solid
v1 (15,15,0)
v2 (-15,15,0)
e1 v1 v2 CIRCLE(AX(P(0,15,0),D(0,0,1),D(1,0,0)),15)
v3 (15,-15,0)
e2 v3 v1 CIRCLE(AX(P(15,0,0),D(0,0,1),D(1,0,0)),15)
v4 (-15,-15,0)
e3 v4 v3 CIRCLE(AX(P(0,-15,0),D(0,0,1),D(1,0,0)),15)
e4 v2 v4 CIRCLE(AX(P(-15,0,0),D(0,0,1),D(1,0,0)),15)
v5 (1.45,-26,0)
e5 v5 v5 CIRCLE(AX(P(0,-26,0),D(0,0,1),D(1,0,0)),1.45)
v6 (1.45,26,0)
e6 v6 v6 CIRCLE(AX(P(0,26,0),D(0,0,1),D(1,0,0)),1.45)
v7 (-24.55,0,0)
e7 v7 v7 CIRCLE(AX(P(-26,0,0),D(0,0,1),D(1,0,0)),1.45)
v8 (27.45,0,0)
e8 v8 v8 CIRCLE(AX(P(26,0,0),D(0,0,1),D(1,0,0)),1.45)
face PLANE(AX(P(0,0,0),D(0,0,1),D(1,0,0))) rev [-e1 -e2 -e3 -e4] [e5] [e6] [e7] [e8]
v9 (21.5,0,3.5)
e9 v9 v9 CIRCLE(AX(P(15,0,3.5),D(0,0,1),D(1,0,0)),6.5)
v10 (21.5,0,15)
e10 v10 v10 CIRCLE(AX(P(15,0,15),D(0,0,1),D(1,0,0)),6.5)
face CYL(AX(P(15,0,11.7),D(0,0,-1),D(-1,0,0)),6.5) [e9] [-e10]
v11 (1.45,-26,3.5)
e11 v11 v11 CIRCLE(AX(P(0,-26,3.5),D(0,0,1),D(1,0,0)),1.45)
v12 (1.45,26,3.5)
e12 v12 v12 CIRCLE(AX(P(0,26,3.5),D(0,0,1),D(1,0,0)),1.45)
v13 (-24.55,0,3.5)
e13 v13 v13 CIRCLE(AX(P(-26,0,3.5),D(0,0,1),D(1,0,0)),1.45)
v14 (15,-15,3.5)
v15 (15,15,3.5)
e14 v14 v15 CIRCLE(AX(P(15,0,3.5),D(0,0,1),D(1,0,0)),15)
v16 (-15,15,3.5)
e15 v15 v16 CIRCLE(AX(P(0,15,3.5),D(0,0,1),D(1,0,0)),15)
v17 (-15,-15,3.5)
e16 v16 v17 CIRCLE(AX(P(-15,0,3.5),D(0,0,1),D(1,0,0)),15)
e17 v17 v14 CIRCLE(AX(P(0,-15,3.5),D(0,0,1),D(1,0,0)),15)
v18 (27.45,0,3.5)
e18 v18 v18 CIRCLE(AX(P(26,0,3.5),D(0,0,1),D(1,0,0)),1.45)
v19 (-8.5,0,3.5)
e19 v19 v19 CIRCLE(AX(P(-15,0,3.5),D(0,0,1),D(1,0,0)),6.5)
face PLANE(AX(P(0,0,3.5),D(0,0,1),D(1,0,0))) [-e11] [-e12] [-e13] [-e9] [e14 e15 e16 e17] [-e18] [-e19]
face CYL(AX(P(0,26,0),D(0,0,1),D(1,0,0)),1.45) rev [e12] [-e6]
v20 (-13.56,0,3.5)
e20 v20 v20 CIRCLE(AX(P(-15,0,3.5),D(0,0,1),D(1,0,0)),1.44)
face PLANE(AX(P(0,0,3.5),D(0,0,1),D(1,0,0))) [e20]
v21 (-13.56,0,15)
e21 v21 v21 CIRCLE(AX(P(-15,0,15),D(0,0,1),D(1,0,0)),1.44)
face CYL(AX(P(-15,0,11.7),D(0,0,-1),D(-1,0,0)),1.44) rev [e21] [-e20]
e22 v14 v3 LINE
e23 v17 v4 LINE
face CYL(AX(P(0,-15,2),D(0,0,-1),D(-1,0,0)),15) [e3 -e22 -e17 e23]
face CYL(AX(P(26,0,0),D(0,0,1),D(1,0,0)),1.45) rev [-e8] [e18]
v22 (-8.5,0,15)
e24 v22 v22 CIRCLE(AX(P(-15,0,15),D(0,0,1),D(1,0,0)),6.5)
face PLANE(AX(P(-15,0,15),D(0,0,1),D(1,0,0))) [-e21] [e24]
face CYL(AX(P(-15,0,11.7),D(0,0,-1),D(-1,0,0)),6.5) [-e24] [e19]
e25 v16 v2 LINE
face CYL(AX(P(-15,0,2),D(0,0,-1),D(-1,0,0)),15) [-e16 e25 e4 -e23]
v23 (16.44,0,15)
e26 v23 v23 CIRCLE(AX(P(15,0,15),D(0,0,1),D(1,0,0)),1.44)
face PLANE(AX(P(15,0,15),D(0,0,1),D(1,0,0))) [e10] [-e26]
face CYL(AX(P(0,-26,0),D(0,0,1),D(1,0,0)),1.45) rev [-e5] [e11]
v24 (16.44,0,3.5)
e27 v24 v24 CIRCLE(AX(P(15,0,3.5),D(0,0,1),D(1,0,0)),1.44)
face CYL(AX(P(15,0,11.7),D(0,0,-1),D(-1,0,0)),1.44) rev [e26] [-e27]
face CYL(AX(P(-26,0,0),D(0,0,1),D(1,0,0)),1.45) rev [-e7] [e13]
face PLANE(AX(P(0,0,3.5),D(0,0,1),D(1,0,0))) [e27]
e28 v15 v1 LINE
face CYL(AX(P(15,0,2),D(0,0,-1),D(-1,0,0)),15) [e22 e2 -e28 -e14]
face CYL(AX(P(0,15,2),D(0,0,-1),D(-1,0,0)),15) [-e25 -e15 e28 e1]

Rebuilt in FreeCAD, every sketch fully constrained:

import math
import FreeCAD as App
import Part
import Sketcher

doc = App.newDocument("Part")
body = doc.addObject("PartDesign::Body", "Body")

sketch1 = body.newObject("Sketcher::SketchObject", "Sketch")
sketch1.AttachmentSupport = (doc.getObject("XY_Plane"), [""])
sketch1.MapMode = "FlatFace"
sketch1.addGeometry(Part.ArcOfCircle(Part.Circle(App.Vector(15, 0, 0), App.Vector(0, 0, 1), 15), math.radians(-90), math.radians(90)), False)
sketch1.addGeometry(Part.ArcOfCircle(Part.Circle(App.Vector(0, 15, 0), App.Vector(0, 0, 1), 15), math.radians(0), math.radians(180)), False)
sketch1.addGeometry(Part.ArcOfCircle(Part.Circle(App.Vector(-15, 0, 0), App.Vector(0, 0, 1), 15), math.radians(90), math.radians(270)), False)
sketch1.addGeometry(Part.ArcOfCircle(Part.Circle(App.Vector(0, -15, 0), App.Vector(0, 0, 1), 15), math.radians(180), math.radians(360)), False)
sketch1.addConstraint(Sketcher.Constraint("Coincident", 0, 2, 1, 1))
sketch1.addConstraint(Sketcher.Constraint("Coincident", 1, 2, 2, 1))
sketch1.addConstraint(Sketcher.Constraint("Coincident", 2, 2, 3, 1))
sketch1.addConstraint(Sketcher.Constraint("Coincident", 3, 2, 0, 1))
sketch1.addConstraint(Sketcher.Constraint("Equal", 0, 1))
sketch1.addConstraint(Sketcher.Constraint("Equal", 1, 2))
sketch1.addConstraint(Sketcher.Constraint("Equal", 2, 3))
sketch1.addConstraint(Sketcher.Constraint("Symmetric", 0, 3, 2, 3, -1, 1))
sketch1.addConstraint(Sketcher.Constraint("Symmetric", 1, 3, 3, 3, -1, 1))
sketch1.addConstraint(Sketcher.Constraint("Symmetric", 0, 2, 1, 2, -2))
sketch1.addConstraint(Sketcher.Constraint("Horizontal", 1, 3, 0, 2))
sketch1.addConstraint(Sketcher.Constraint("Vertical", 2, 3, 1, 2))
sketch1.addConstraint(Sketcher.Constraint("Radius", 0, 15.0))
pad1 = body.newObject("PartDesign::Pad", "Pad")
pad1.Profile = sketch1
pad1.Length = 2

sketch2 = body.newObject("Sketcher::SketchObject", "Sketch001")
sketch2.AttachmentSupport = (doc.getObject("XY_Plane"), [""])
sketch2.MapMode = "FlatFace"
sketch2.AttachmentOffset = App.Placement(App.Vector(0, 0, 2), App.Rotation())
sketch2.addGeometry(Part.Circle(App.Vector(-15, 0, 0), App.Vector(0, 0, 1), 6.5), False)
sketch2.addGeometry(Part.Circle(App.Vector(-15, 0, 0), App.Vector(0, 0, 1), 1.4), False)
sketch2.addGeometry(Part.Circle(App.Vector(15, 0, 0), App.Vector(0, 0, 1), 6.5), False)
sketch2.addGeometry(Part.Circle(App.Vector(15, 0, 0), App.Vector(0, 0, 1), 1.4), False)
sketch2.addConstraint(Sketcher.Constraint("Coincident", 1, 3, 0, 3))
sketch2.addConstraint(Sketcher.Constraint("Coincident", 3, 3, 2, 3))
sketch2.addConstraint(Sketcher.Constraint("Equal", 0, 2))
sketch2.addConstraint(Sketcher.Constraint("Equal", 1, 3))
sketch2.addConstraint(Sketcher.Constraint("Symmetric", 0, 3, 2, 3, -1, 1))
sketch2.addConstraint(Sketcher.Constraint("PointOnObject", 0, 3, -1))
sketch2.addConstraint(Sketcher.Constraint("Diameter", 0, 13.0))
sketch2.addConstraint(Sketcher.Constraint("Diameter", 1, 2.88))
sketch2.addConstraint(Sketcher.Constraint("DistanceX", 0, 3, -1, 1, 15.0))
pad2 = body.newObject("PartDesign::Pad", "Pad001")
pad2.Profile = sketch2
pad2.Length = 9.7

sketch3 = body.newObject("Sketcher::SketchObject", "Sketch002")
sketch3.AttachmentSupport = (doc.getObject("XY_Plane"), [""])
sketch3.MapMode = "FlatFace"
sketch3.addGeometry(Part.ArcOfCircle(Part.Circle(App.Vector(0, 15, 0), App.Vector(0, 0, 1), 15), math.radians(0), math.radians(180)), False)
sketch3.addGeometry(Part.ArcOfCircle(Part.Circle(App.Vector(-15, 0, 0), App.Vector(0, 0, 1), 15), math.radians(90), math.radians(270)), False)
sketch3.addGeometry(Part.ArcOfCircle(Part.Circle(App.Vector(0, -15, 0), App.Vector(0, 0, 1), 15), math.radians(180), math.radians(360)), False)
sketch3.addGeometry(Part.ArcOfCircle(Part.Circle(App.Vector(15, 0, 0), App.Vector(0, 0, 1), 15), math.radians(-90), math.radians(90)), False)
sketch3.addConstraint(Sketcher.Constraint("Coincident", 0, 2, 1, 1))
sketch3.addConstraint(Sketcher.Constraint("Coincident", 1, 2, 2, 1))
sketch3.addConstraint(Sketcher.Constraint("Coincident", 2, 2, 3, 1))
sketch3.addConstraint(Sketcher.Constraint("Coincident", 3, 2, 0, 1))
sketch3.addConstraint(Sketcher.Constraint("Equal", 0, 1))
sketch3.addConstraint(Sketcher.Constraint("Equal", 1, 2))
sketch3.addConstraint(Sketcher.Constraint("Equal", 2, 3))
sketch3.addConstraint(Sketcher.Constraint("Symmetric", 0, 3, 2, 3, -1, 1))
sketch3.addConstraint(Sketcher.Constraint("Symmetric", 1, 3, 3, 3, -1, 1))
sketch3.addConstraint(Sketcher.Constraint("Symmetric", 1, 2, 2, 2, -2))
sketch3.addConstraint(Sketcher.Constraint("Horizontal", 2, 3, 1, 2))
sketch3.addConstraint(Sketcher.Constraint("Vertical", 1, 3, 0, 2))
sketch3.addConstraint(Sketcher.Constraint("Radius", 0, 15.0))
pad3 = body.newObject("PartDesign::Pad", "Pad002")
pad3.Profile = sketch3
pad3.Length = 3.5

sketch4 = body.newObject("Sketcher::SketchObject", "Sketch003")
sketch4.AttachmentSupport = (doc.getObject("XY_Plane"), [""])
sketch4.MapMode = "FlatFace"
sketch4.AttachmentOffset = App.Placement(App.Vector(0, 0, 2), App.Rotation())
sketch4.addGeometry(Part.Circle(App.Vector(-15, 0, 0), App.Vector(0, 0, 1), 6.5), False)
sketch4.addGeometry(Part.Circle(App.Vector(-15, 0, 0), App.Vector(0, 0, 1), 1.4), False)
sketch4.addGeometry(Part.Circle(App.Vector(15, 0, 0), App.Vector(0, 0, 1), 6.5), False)
sketch4.addGeometry(Part.Circle(App.Vector(15, 0, 0), App.Vector(0, 0, 1), 1.4), False)
sketch4.addConstraint(Sketcher.Constraint("Coincident", 1, 3, 0, 3))
sketch4.addConstraint(Sketcher.Constraint("Coincident", 3, 3, 2, 3))
sketch4.addConstraint(Sketcher.Constraint("Equal", 0, 2))
sketch4.addConstraint(Sketcher.Constraint("Equal", 1, 3))
sketch4.addConstraint(Sketcher.Constraint("Symmetric", 0, 3, 2, 3, -1, 1))
sketch4.addConstraint(Sketcher.Constraint("PointOnObject", 0, 3, -1))
sketch4.addConstraint(Sketcher.Constraint("Diameter", 0, 13.0))
sketch4.addConstraint(Sketcher.Constraint("Diameter", 1, 2.88))
sketch4.addConstraint(Sketcher.Constraint("DistanceX", 0, 3, -1, 1, 15.0))
pad4 = body.newObject("PartDesign::Pad", "Pad003")
pad4.Profile = sketch4
pad4.Length = 10

sketch5 = body.newObject("Sketcher::SketchObject", "Sketch004")
sketch5.AttachmentSupport = (doc.getObject("XY_Plane"), [""])
sketch5.MapMode = "FlatFace"
sketch5.AttachmentOffset = App.Placement(App.Vector(0, 0, 2), App.Rotation())
sketch5.addGeometry(Part.Circle(App.Vector(-15, 0, 0), App.Vector(0, 0, 1), 6.5), False)
sketch5.addGeometry(Part.Circle(App.Vector(-15, 0, 0), App.Vector(0, 0, 1), 1.4), False)
sketch5.addGeometry(Part.Circle(App.Vector(15, 0, 0), App.Vector(0, 0, 1), 6.5), False)
sketch5.addGeometry(Part.Circle(App.Vector(15, 0, 0), App.Vector(0, 0, 1), 1.4), False)
sketch5.addConstraint(Sketcher.Constraint("Coincident", 1, 3, 0, 3))
sketch5.addConstraint(Sketcher.Constraint("Coincident", 3, 3, 2, 3))
sketch5.addConstraint(Sketcher.Constraint("Equal", 0, 2))
sketch5.addConstraint(Sketcher.Constraint("Equal", 1, 3))
sketch5.addConstraint(Sketcher.Constraint("Symmetric", 0, 3, 2, 3, -1, 1))
sketch5.addConstraint(Sketcher.Constraint("PointOnObject", 0, 3, -1))
sketch5.addConstraint(Sketcher.Constraint("Diameter", 0, 13.0))
sketch5.addConstraint(Sketcher.Constraint("Diameter", 1, 2.88))
sketch5.addConstraint(Sketcher.Constraint("DistanceX", 0, 3, -1, 1, 15.0))
pad5 = body.newObject("PartDesign::Pad", "Pad004")
pad5.Profile = sketch5
pad5.Type = "TwoLengths"
pad5.Length = 10
pad5.Length2 = 2

sketch6 = body.newObject("Sketcher::SketchObject", "Sketch005")
sketch6.AttachmentSupport = (doc.getObject("XY_Plane"), [""])
sketch6.MapMode = "FlatFace"
sketch6.AttachmentOffset = App.Placement(App.Vector(0, 0, 2), App.Rotation())
sketch6.addGeometry(Part.Circle(App.Vector(-15, 0, 0), App.Vector(0, 0, 1), 6.5), False)
sketch6.addGeometry(Part.Circle(App.Vector(-15, 0, 0), App.Vector(0, 0, 1), 1.4), False)
sketch6.addGeometry(Part.Circle(App.Vector(15, 0, 0), App.Vector(0, 0, 1), 6.5), False)
sketch6.addGeometry(Part.Circle(App.Vector(15, 0, 0), App.Vector(0, 0, 1), 1.4), False)
sketch6.addConstraint(Sketcher.Constraint("Coincident", 1, 3, 0, 3))
sketch6.addConstraint(Sketcher.Constraint("Coincident", 3, 3, 2, 3))
sketch6.addConstraint(Sketcher.Constraint("Equal", 0, 2))
sketch6.addConstraint(Sketcher.Constraint("Equal", 1, 3))
sketch6.addConstraint(Sketcher.Constraint("Symmetric", 0, 3, 2, 3, -1, 1))
sketch6.addConstraint(Sketcher.Constraint("PointOnObject", 0, 3, -1))
sketch6.addConstraint(Sketcher.Constraint("Diameter", 0, 13.0))
sketch6.addConstraint(Sketcher.Constraint("Diameter", 1, 2.88))
sketch6.addConstraint(Sketcher.Constraint("DistanceX", 0, 3, -1, 1, 15.0))
pad6 = body.newObject("PartDesign::Pad", "Pad005")
pad6.Profile = sketch6
pad6.Length = 13

sketch7 = body.newObject("Sketcher::SketchObject", "Sketch006")
sketch7.AttachmentSupport = (doc.getObject("XY_Plane"), [""])
sketch7.MapMode = "FlatFace"
sketch7.addGeometry(Part.ArcOfCircle(Part.Circle(App.Vector(0, 15, 0), App.Vector(0, 0, 1), 15), math.radians(0), math.radians(180)), False)
sketch7.addGeometry(Part.ArcOfCircle(Part.Circle(App.Vector(-15, 0, 0), App.Vector(0, 0, 1), 15), math.radians(90), math.radians(270)), False)
sketch7.addGeometry(Part.ArcOfCircle(Part.Circle(App.Vector(0, -15, 0), App.Vector(0, 0, 1), 15), math.radians(180), math.radians(360)), False)
sketch7.addGeometry(Part.ArcOfCircle(Part.Circle(App.Vector(15, 0, 0), App.Vector(0, 0, 1), 15), math.radians(-90), math.radians(90)), False)
sketch7.addConstraint(Sketcher.Constraint("Coincident", 0, 2, 1, 1))
sketch7.addConstraint(Sketcher.Constraint("Coincident", 1, 2, 2, 1))
sketch7.addConstraint(Sketcher.Constraint("Coincident", 2, 2, 3, 1))
sketch7.addConstraint(Sketcher.Constraint("Coincident", 3, 2, 0, 1))
sketch7.addConstraint(Sketcher.Constraint("Equal", 0, 1))
sketch7.addConstraint(Sketcher.Constraint("Equal", 1, 2))
sketch7.addConstraint(Sketcher.Constraint("Equal", 2, 3))
sketch7.addConstraint(Sketcher.Constraint("Symmetric", 0, 3, 2, 3, -1, 1))
sketch7.addConstraint(Sketcher.Constraint("Symmetric", 1, 3, 3, 3, -1, 1))
sketch7.addConstraint(Sketcher.Constraint("Symmetric", 1, 2, 2, 2, -2))
sketch7.addConstraint(Sketcher.Constraint("Horizontal", 2, 3, 1, 2))
sketch7.addConstraint(Sketcher.Constraint("Vertical", 1, 3, 0, 2))
sketch7.addConstraint(Sketcher.Constraint("Radius", 0, 15.0))
pad7 = body.newObject("PartDesign::Pad", "Pad006")
pad7.Profile = sketch7
pad7.Length = 3

sketch8 = body.newObject("Sketcher::SketchObject", "Sketch007")
sketch8.AttachmentSupport = (doc.getObject("XY_Plane"), [""])
sketch8.MapMode = "FlatFace"
sketch8.AttachmentOffset = App.Placement(App.Vector(0, 0, 3.5), App.Rotation())
sketch8.addGeometry(Part.Circle(App.Vector(0, 26, 0), App.Vector(0, 0, 1), 1.4), False)
sketch8.addGeometry(Part.Circle(App.Vector(-26, 0, 0), App.Vector(0, 0, 1), 1.4), False)
sketch8.addGeometry(Part.Circle(App.Vector(26, 0, 0), App.Vector(0, 0, 1), 1.4), False)
sketch8.addGeometry(Part.Circle(App.Vector(0, -26, 0), App.Vector(0, 0, 1), 1.4), False)
sketch8.addConstraint(Sketcher.Constraint("Equal", 0, 1))
sketch8.addConstraint(Sketcher.Constraint("Equal", 1, 2))
sketch8.addConstraint(Sketcher.Constraint("Equal", 2, 3))
sketch8.addConstraint(Sketcher.Constraint("Symmetric", 1, 3, 2, 3, -1, 1))
sketch8.addConstraint(Sketcher.Constraint("Symmetric", 0, 3, 3, 3, -1, 1))
sketch8.addConstraint(Sketcher.Constraint("PointOnObject", 0, 3, -2))
sketch8.addConstraint(Sketcher.Constraint("PointOnObject", 1, 3, -1))
sketch8.addConstraint(Sketcher.Constraint("Diameter", 0, 2.9))
sketch8.addConstraint(Sketcher.Constraint("DistanceY", -1, 1, 0, 3, 26.0))
sketch8.addConstraint(Sketcher.Constraint("DistanceX", 1, 3, -1, 1, 26.0))
pocket1 = body.newObject("PartDesign::Pocket", "Pocket")
pocket1.Profile = sketch8
pocket1.Length = 3.5

doc.recompute()
